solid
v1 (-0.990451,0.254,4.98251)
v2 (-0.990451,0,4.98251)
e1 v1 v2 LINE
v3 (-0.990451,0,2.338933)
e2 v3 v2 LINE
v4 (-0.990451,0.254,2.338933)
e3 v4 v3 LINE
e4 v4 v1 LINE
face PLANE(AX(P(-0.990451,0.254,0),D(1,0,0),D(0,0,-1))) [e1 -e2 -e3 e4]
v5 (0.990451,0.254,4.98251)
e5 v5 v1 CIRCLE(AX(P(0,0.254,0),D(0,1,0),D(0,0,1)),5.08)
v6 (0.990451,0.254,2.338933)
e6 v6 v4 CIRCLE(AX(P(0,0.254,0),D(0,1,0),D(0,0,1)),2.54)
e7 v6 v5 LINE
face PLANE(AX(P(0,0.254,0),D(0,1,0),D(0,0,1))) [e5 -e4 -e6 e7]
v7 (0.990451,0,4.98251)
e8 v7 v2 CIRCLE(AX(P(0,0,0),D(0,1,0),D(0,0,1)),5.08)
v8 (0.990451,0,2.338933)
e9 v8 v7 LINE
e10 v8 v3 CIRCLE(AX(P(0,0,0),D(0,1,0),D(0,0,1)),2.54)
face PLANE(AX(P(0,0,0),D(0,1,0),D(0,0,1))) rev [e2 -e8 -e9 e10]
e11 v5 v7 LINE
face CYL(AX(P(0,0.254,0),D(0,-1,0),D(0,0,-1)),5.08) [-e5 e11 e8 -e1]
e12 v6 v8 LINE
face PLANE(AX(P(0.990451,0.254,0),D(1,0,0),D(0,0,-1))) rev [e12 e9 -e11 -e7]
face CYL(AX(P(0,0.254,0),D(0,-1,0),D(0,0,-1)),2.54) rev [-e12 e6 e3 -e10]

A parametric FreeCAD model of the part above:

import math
import FreeCAD as App
import Part
import Sketcher

V = App.Vector
Q = App.Units.Quantity

doc = App.newDocument("Part")
params = doc.addObject("Spreadsheet::Sheet", "Params")
for row, (alias, value) in enumerate([
    ("sketch1_radius", "0.2 in"),
    ("sketch1_radius2", "0.1 in"),
    ("pad1_length", "0.01 in"),
], start=1):
    params.set(f"A{row}", alias)
    params.set(f"B{row}", "=" + value)
    params.setAlias(f"B{row}", alias)

body = doc.addObject("PartDesign::Body", "Body")

sketch1 = body.newObject("Sketcher::SketchObject", "Sketch")
sketch1.AttachmentSupport = (doc.getObject("XZ_Plane"), [""])
sketch1.MapMode = "FlatFace"
sketch1.addGeometry([
    Part.ArcOfCircle(Part.Circle(V(0, 0, 0), V(0, 0, 1), 5.1), math.radians(101), math.radians(259)),
    Part.LineSegment(V(-1, 5, 0), V(-1, 2.3, 0)),
    Part.ArcOfCircle(Part.Circle(V(0, 0, 0), V(0, 0, 1), 2.5), math.radians(113), math.radians(247)),
    Part.ArcOfCircle(Part.Circle(V(0, 0, 0), V(0, 0, 1), 2.5), math.radians(-113), math.radians(-67)),
    Part.ArcOfCircle(Part.Circle(V(0, 0, 0), V(0, 0, 1), 2.5), math.radians(-67), math.radians(0)),
    Part.ArcOfCircle(Part.Circle(V(0, 0, 0), V(0, 0, 1), 2.5), math.radians(0), math.radians(67)),
    Part.LineSegment(V(1, 2.3, 0), V(1, 5, 0)),
    Part.ArcOfCircle(Part.Circle(V(0, 0, 0), V(0, 0, 1), 5.1), math.radians(0), math.radians(79)),
    Part.ArcOfCircle(Part.Circle(V(0, 0, 0), V(0, 0, 1), 5.1), math.radians(-79), math.radians(0)),
    Part.ArcOfCircle(Part.Circle(V(0, 0, 0), V(0, 0, 1), 5.1), math.radians(-101), math.radians(-79)),
], False)
sketch1.addConstraint([
    Sketcher.Constraint("Coincident", 0, 1, 1, 1),
    Sketcher.Constraint("Coincident", 1, 2, 2, 1),
    Sketcher.Constraint("Tangent", 2, 2, 3, 1),
    Sketcher.Constraint("Tangent", 3, 2, 4, 1),
    Sketcher.Constraint("Tangent", 4, 2, 5, 1),
    Sketcher.Constraint("Coincident", 5, 2, 6, 1),
    Sketcher.Constraint("Coincident", 6, 2, 7, 2),
    Sketcher.Constraint("Tangent", 7, 1, 8, 2),
    Sketcher.Constraint("Tangent", 8, 1, 9, 2),
    Sketcher.Constraint("Tangent", 9, 1, 0, 2),
    Sketcher.Constraint("Vertical", 1),
    Sketcher.Constraint("Vertical", 6),
    Sketcher.Constraint("Coincident", 0, 3, -1, 1),
    Sketcher.Constraint("Coincident", 2, 3, -1, 1),
    Sketcher.Constraint("Coincident", 4, 3, -1, 1),
    Sketcher.Constraint("Coincident", 7, 3, -1, 1),
    Sketcher.Constraint("Equal", 4, 5),
    Sketcher.Constraint("Equal", 0, 7),
    Sketcher.Constraint("PointOnObject", 4, 2, -1),
    Sketcher.Constraint("PointOnObject", 7, 1, -1),
    Sketcher.Constraint("Horizontal", 2, 2, 3, 2),
    Sketcher.Constraint("Horizontal", 1, 2, 5, 2),
    Sketcher.Constraint("Horizontal", 8, 1, 9, 1),
    Sketcher.Constraint("Vertical", 1, 2, 2, 2),
    Sketcher.Constraint("Vertical", 6, 2, 8, 1),
    Sketcher.Constraint("Radius", 0, Q("0.2 in")),
    Sketcher.Constraint("Radius", 2, Q("0.1 in")),
    Sketcher.Constraint("DistanceX", 2, 2, 3, 2, Q("1.980902 mm")),
])
sketch1.setExpression("Constraints[25]", "Params.sketch1_radius")
sketch1.setExpression("Constraints[26]", "Params.sketch1_radius2")
pad1 = body.newObject("PartDesign::Pad", "Pad")
pad1.Profile = sketch1
pad1.setExpression("Length", "Params.pad1_length")
pad1.Reversed = True

doc.recompute()
